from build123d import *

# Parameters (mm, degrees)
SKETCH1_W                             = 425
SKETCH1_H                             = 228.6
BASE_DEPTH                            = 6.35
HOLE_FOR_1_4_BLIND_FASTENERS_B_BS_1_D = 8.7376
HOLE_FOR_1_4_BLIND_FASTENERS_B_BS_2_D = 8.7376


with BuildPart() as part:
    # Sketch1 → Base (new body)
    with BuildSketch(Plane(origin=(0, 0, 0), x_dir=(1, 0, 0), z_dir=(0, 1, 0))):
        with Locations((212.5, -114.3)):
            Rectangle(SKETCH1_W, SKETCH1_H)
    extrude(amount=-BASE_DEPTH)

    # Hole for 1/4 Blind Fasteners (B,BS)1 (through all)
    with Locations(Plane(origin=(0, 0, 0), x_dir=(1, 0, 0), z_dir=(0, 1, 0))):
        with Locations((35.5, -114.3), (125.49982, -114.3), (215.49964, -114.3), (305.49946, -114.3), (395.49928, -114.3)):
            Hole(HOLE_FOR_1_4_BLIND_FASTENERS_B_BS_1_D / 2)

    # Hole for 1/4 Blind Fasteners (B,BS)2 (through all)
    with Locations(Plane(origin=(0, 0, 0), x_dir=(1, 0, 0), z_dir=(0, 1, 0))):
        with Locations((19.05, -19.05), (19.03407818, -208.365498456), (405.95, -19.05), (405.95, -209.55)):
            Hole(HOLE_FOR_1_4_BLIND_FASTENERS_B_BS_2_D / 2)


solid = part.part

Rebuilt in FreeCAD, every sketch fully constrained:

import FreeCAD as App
import Part
import Sketcher

V = App.Vector
Q = App.Units.Quantity


def add_polygon(sketch, points):
    """Adds a closed chain of lines whose ends are joined by coincident constraints."""
    first, n = sketch.GeometryCount, len(points)
    for a, b in zip(points, points[1:] + points[:1]):
        sketch.addGeometry(Part.LineSegment(App.Vector(*a, 0), App.Vector(*b, 0)), False)
    for i in range(n):
        sketch.addConstraint(Sketcher.Constraint("Coincident", first + i, 2, first + (i + 1) % n, 1))

doc = App.newDocument("Part")
body = doc.addObject("PartDesign::Body", "Body")

sketch1 = body.newObject("Sketcher::SketchObject", "Sketch")
sketch1.AttachmentSupport = (doc.getObject("XZ_Plane"), [""])
sketch1.MapMode = "FlatFace"
add_polygon(sketch1, [(0, 0), (0, 229), (425, 229), (425, 0)])
sketch1.addConstraint(Sketcher.Constraint("Vertical", 0))
sketch1.addConstraint(Sketcher.Constraint("Horizontal", 1))
sketch1.addConstraint(Sketcher.Constraint("Vertical", 2))
sketch1.addConstraint(Sketcher.Constraint("Horizontal", 3))
sketch1.addConstraint(Sketcher.Constraint("Coincident", 3, 2, -1, 1))
sketch1.addConstraint(Sketcher.Constraint("DistanceY", 0, 1, 0, 2, Q("9 in")))
sketch1.addConstraint(Sketcher.Constraint("DistanceX", 1, 1, 1, 2, 425.0))
pad1 = body.newObject("PartDesign::Pad", "Pad")
pad1.Profile = sketch1
pad1.Length = Q("0.25 in")

sketch2 = body.newObject("Sketcher::SketchObject", "Sketch001")
sketch2.AttachmentSupport = (doc.getObject("XZ_Plane"), [""])
sketch2.MapMode = "FlatFace"
sketch2.addGeometry(Part.Circle(V(35.5, 114.3, 0), V(0, 0, 1), 4.4), False)
sketch2.addGeometry(Part.Circle(V(125.5, 114.3, 0), V(0, 0, 1), 4.4), False)
sketch2.addGeometry(Part.Circle(V(215.5, 114.3, 0), V(0, 0, 1), 4.4), False)
sketch2.addGeometry(Part.Circle(V(305.5, 114.3, 0), V(0, 0, 1), 4.4), False)
sketch2.addGeometry(Part.Circle(V(395.5, 114.3, 0), V(0, 0, 1), 4.4), False)
sketch2.addConstraint(Sketcher.Constraint("Equal", 0, 1))
sketch2.addConstraint(Sketcher.Constraint("Equal", 1, 2))
sketch2.addConstraint(Sketcher.Constraint("Equal", 2, 3))
sketch2.addConstraint(Sketcher.Constraint("Equal", 3, 4))
sketch2.addConstraint(Sketcher.Constraint("Horizontal", 0, 3, 1, 3))
sketch2.addConstraint(Sketcher.Constraint("Horizontal", 1, 3, 2, 3))
sketch2.addConstraint(Sketcher.Constraint("Horizontal", 2, 3, 3, 3))
sketch2.addConstraint(Sketcher.Constraint("Horizontal", 3, 3, 4, 3))
sketch2.addConstraint(Sketcher.Constraint("Diameter", 0, Q("0.344 in")))
sketch2.addConstraint(Sketcher.Constraint("DistanceY", -1, 1, 0, 3, Q("4.5 in")))
sketch2.addConstraint(Sketcher.Constraint("DistanceX", 0, 3, 1, 3, Q("3.5433 in")))
sketch2.addConstraint(Sketcher.Constraint("DistanceX", 1, 3, 2, 3, Q("3.5433 in")))
sketch2.addConstraint(Sketcher.Constraint("DistanceX", 2, 3, 3, 3, Q("3.5433 in")))
sketch2.addConstraint(Sketcher.Constraint("DistanceX", 3, 3, 4, 3, Q("3.5433 in")))
sketch2.addConstraint(Sketcher.Constraint("DistanceX", -1, 1, 0, 3, 35.5))
doc.recompute()
hole = body.newObject("PartDesign::Hole", "Hole")
hole.Profile = sketch2
hole.ThreadType = "None"
hole.Diameter = Q("0.344 in")
hole.DepthType = "ThroughAll"
hole.Reversed = True

sketch3 = body.newObject("Sketcher::SketchObject", "Sketch002")
sketch3.AttachmentSupport = (doc.getObject("XZ_Plane"), [""])
sketch3.MapMode = "FlatFace"
sketch3.addGeometry(Part.Circle(V(19.1, 19.1, 0), V(0, 0, 1), 4.4), False)
sketch3.addGeometry(Part.Circle(V(19, 208.4, 0), V(0, 0, 1), 4.4), False)
sketch3.addGeometry(Part.Circle(V(405.9, 19.1, 0), V(0, 0, 1), 4.4), False)
sketch3.addGeometry(Part.Circle(V(405.9, 209.6, 0), V(0, 0, 1), 4.4), False)
sketch3.addConstraint(Sketcher.Constraint("Equal", 0, 1))
sketch3.addConstraint(Sketcher.Constraint("Equal", 1, 2))
sketch3.addConstraint(Sketcher.Constraint("Equal", 2, 3))
sketch3.addConstraint(Sketcher.Constraint("Horizontal", 0, 3, 2, 3))
sketch3.addConstraint(Sketcher.Constraint("Vertical", 2, 3, 3, 3))
sketch3.addConstraint(Sketcher.Constraint("Diameter", 0, Q("0.344 in")))
sketch3.addConstraint(Sketcher.Constraint("DistanceY", 2, 3, 3, 3, Q("7.5 in")))
sketch3.addConstraint(Sketcher.Constraint("DistanceX", -1, 1, 0, 3, Q("0.75 in")))
sketch3.addConstraint(Sketcher.Constraint("DistanceY", -1, 1, 0, 3, Q("0.75 in")))
sketch3.addConstraint(Sketcher.Constraint("DistanceY", -1, 1, 1, 3, 208.365498))
sketch3.addConstraint(Sketcher.Constraint("DistanceX", -1, 1, 2, 3, 405.95))
sketch3.addConstraint(Sketcher.Constraint("DistanceX", -1, 1, 1, 3, 19.034078))
doc.recompute()
hole2 = body.newObject("PartDesign::Hole", "Hole001")
hole2.Profile = sketch3
hole2.ThreadType = "None"
hole2.Diameter = Q("0.344 in")
hole2.DepthType = "ThroughAll"
hole2.Reversed = True

doc.recompute()
